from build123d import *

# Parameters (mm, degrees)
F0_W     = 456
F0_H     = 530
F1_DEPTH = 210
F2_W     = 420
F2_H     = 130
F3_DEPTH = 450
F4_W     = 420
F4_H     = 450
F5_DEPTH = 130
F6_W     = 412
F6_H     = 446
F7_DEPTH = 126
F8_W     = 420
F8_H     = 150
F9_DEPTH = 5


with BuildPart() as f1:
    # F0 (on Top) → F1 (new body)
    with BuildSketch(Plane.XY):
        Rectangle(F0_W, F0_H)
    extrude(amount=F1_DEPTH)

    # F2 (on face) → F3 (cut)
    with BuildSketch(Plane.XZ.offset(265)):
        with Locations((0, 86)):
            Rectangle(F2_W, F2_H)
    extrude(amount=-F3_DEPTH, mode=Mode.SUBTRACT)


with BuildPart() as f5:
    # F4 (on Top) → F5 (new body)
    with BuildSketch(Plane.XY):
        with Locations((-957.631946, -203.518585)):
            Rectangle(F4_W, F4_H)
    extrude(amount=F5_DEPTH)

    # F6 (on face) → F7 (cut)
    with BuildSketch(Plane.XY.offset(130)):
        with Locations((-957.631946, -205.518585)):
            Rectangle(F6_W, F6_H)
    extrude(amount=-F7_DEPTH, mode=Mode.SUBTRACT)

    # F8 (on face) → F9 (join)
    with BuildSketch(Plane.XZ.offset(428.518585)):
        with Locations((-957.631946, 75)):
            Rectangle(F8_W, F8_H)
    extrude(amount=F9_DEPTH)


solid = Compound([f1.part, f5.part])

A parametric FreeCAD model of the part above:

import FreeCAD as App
import Part
import Sketcher
Q = App.Units.Quantity

doc = App.newDocument("Part")
body = doc.addObject("PartDesign::Body", "Body")

# Sketch on XY plane
sketch1 = body.newObject("Sketcher::SketchObject", "Sketch")
sketch1.AttachmentSupport = (doc.getObject("XY_Plane"), [""])
sketch1.MapMode = "FlatFace"
sketch1.addGeometry(Part.LineSegment(App.Vector(-228, 265, 0), App.Vector(-228, -265, 0)), False)
sketch1.addGeometry(Part.LineSegment(App.Vector(-228, -265, 0), App.Vector(228, -265, 0)), False)
sketch1.addGeometry(Part.LineSegment(App.Vector(228, -265, 0), App.Vector(228, 265, 0)), False)
sketch1.addGeometry(Part.LineSegment(App.Vector(228, 265, 0), App.Vector(-228, 265, 0)), False)
sketch1.addConstraint(Sketcher.Constraint("Coincident", 0, 2, 1, 1))
sketch1.addConstraint(Sketcher.Constraint("Coincident", 1, 2, 2, 1))
sketch1.addConstraint(Sketcher.Constraint("Coincident", 2, 2, 3, 1))
sketch1.addConstraint(Sketcher.Constraint("Coincident", 3, 2, 0, 1))
sketch1.addConstraint(Sketcher.Constraint("Vertical", 0))
sketch1.addConstraint(Sketcher.Constraint("Horizontal", 1))
sketch1.addConstraint(Sketcher.Constraint("Vertical", 2))
sketch1.addConstraint(Sketcher.Constraint("Horizontal", 3))
sketch1.addConstraint(Sketcher.Constraint("Symmetric", 0, 2, 2, 2, -1, 1))
sketch1.addConstraint(Sketcher.Constraint("DistanceX", 1, 1, 1, 2, Q("456 mm")))
sketch1.addConstraint(Sketcher.Constraint("DistanceY", 0, 2, 0, 1, Q("530 mm")))
pad1 = body.newObject("PartDesign::Pad", "Pad")
pad1.Profile = sketch1
pad1.Length = 210

# Sketch on XZ plane
sketch2 = body.newObject("Sketcher::SketchObject", "Sketch001")
sketch2.AttachmentSupport = (doc.getObject("XZ_Plane"), [""])
sketch2.MapMode = "FlatFace"
sketch2.AttachmentOffset = App.Placement(App.Vector(0, 0, 265), App.Rotation())
sketch2.addGeometry(Part.LineSegment(App.Vector(-210, 151, 0), App.Vector(-210, 21, 0)), False)
sketch2.addGeometry(Part.LineSegment(App.Vector(-210, 21, 0), App.Vector(210, 21, 0)), False)
sketch2.addGeometry(Part.LineSegment(App.Vector(210, 21, 0), App.Vector(210, 151, 0)), False)
sketch2.addGeometry(Part.LineSegment(App.Vector(210, 151, 0), App.Vector(-210, 151, 0)), False)
sketch2.addConstraint(Sketcher.Constraint("Coincident", 0, 2, 1, 1))
sketch2.addConstraint(Sketcher.Constraint("Coincident", 1, 2, 2, 1))
sketch2.addConstraint(Sketcher.Constraint("Coincident", 2, 2, 3, 1))
sketch2.addConstraint(Sketcher.Constraint("Coincident", 3, 2, 0, 1))
sketch2.addConstraint(Sketcher.Constraint("Vertical", 0))
sketch2.addConstraint(Sketcher.Constraint("Horizontal", 1))
sketch2.addConstraint(Sketcher.Constraint("Vertical", 2))
sketch2.addConstraint(Sketcher.Constraint("Horizontal", 3))
sketch2.addConstraint(Sketcher.Constraint("DistanceX", 1, 1, 1, 2, Q("420 mm")))
sketch2.addConstraint(Sketcher.Constraint("DistanceY", 0, 2, 0, 1, Q("130 mm")))
sketch2.addConstraint(Sketcher.Constraint("DistanceX", 0, 2, -1, 1, Q("210 mm")))
sketch2.addConstraint(Sketcher.Constraint("DistanceY", -1, 1, 0, 2, Q("21 mm")))
pocket1 = body.newObject("PartDesign::Pocket", "Pocket")
pocket1.Profile = sketch2
pocket1.Length = 450
body2 = doc.addObject("PartDesign::Body", "Body001")

# Sketch on XY plane
sketch3 = body2.newObject("Sketcher::SketchObject", "Sketch002")
sketch3.AttachmentSupport = (doc.getObject("XY_Plane001"), [""])
sketch3.MapMode = "FlatFace"
sketch3.addGeometry(Part.LineSegment(App.Vector(-1167.631946, 21.481415, 0), App.Vector(-1167.631946, -428.518585, 0)), False)
sketch3.addGeometry(Part.LineSegment(App.Vector(-1167.631946, -428.518585, 0), App.Vector(-747.631946, -428.518585, 0)), False)
sketch3.addGeometry(Part.LineSegment(App.Vector(-747.631946, -428.518585, 0), App.Vector(-747.631946, 21.481415, 0)), False)
sketch3.addGeometry(Part.LineSegment(App.Vector(-747.631946, 21.481415, 0), App.Vector(-1167.631946, 21.481415, 0)), False)
sketch3.addConstraint(Sketcher.Constraint("Coincident", 0, 2, 1, 1))
sketch3.addConstraint(Sketcher.Constraint("Coincident", 1, 2, 2, 1))
sketch3.addConstraint(Sketcher.Constraint("Coincident", 2, 2, 3, 1))
sketch3.addConstraint(Sketcher.Constraint("Coincident", 3, 2, 0, 1))
sketch3.addConstraint(Sketcher.Constraint("Vertical", 0))
sketch3.addConstraint(Sketcher.Constraint("Horizontal", 1))
sketch3.addConstraint(Sketcher.Constraint("Vertical", 2))
sketch3.addConstraint(Sketcher.Constraint("Horizontal", 3))
sketch3.addConstraint(Sketcher.Constraint("DistanceX", 1, 1, 1, 2, Q("420 mm")))
sketch3.addConstraint(Sketcher.Constraint("DistanceY", 0, 2, 0, 1, Q("450 mm")))
sketch3.addConstraint(Sketcher.Constraint("DistanceX", 0, 2, -1, 1, Q("1167.631946 mm")))
sketch3.addConstraint(Sketcher.Constraint("DistanceY", 0, 2, -1, 1, Q("428.518585 mm")))
pad2 = body2.newObject("PartDesign::Pad", "Pad001")
pad2.Profile = sketch3
pad2.Length = 130

# Sketch on XY plane
sketch4 = body2.newObject("Sketcher::SketchObject", "Sketch003")
sketch4.AttachmentSupport = (doc.getObject("XY_Plane001"), [""])
sketch4.MapMode = "FlatFace"
sketch4.AttachmentOffset = App.Placement(App.Vector(0, 0, 130), App.Rotation())
sketch4.addGeometry(Part.LineSegment(App.Vector(-1163.631946, 17.481415, 0), App.Vector(-1163.631946, -428.518585, 0)), False)
sketch4.addGeometry(Part.LineSegment(App.Vector(-1163.631946, -428.518585, 0), App.Vector(-751.631946, -428.518585, 0)), False)
sketch4.addGeometry(Part.LineSegment(App.Vector(-751.631946, -428.518585, 0), App.Vector(-751.631946, 17.481415, 0)), False)
sketch4.addGeometry(Part.LineSegment(App.Vector(-751.631946, 17.481415, 0), App.Vector(-1163.631946, 17.481415, 0)), False)
sketch4.addConstraint(Sketcher.Constraint("Coincident", 0, 2, 1, 1))
sketch4.addConstraint(Sketcher.Constraint("Coincident", 1, 2, 2, 1))
sketch4.addConstraint(Sketcher.Constraint("Coincident", 2, 2, 3, 1))
sketch4.addConstraint(Sketcher.Constraint("Coincident", 3, 2, 0, 1))
sketch4.addConstraint(Sketcher.Constraint("Vertical", 0))
sketch4.addConstraint(Sketcher.Constraint("Horizontal", 1))
sketch4.addConstraint(Sketcher.Constraint("Vertical", 2))
sketch4.addConstraint(Sketcher.Constraint("Horizontal", 3))
sketch4.addConstraint(Sketcher.Constraint("DistanceX", 1, 1, 1, 2, Q("412 mm")))
sketch4.addConstraint(Sketcher.Constraint("DistanceY", 0, 2, 0, 1, Q("446 mm")))
sketch4.addConstraint(Sketcher.Constraint("DistanceX", 0, 2, -1, 1, Q("1163.631946 mm")))
sketch4.addConstraint(Sketcher.Constraint("DistanceY", 0, 2, -1, 1, Q("428.518585 mm")))
pocket2 = body2.newObject("PartDesign::Pocket", "Pocket001")
pocket2.Profile = sketch4
pocket2.Length = 126

# Sketch on XZ plane
sketch5 = body2.newObject("Sketcher::SketchObject", "Sketch004")
sketch5.AttachmentSupport = (doc.getObject("XZ_Plane001"), [""])
sketch5.MapMode = "FlatFace"
sketch5.AttachmentOffset = App.Placement(App.Vector(0, 0, 428.518585), App.Rotation())
sketch5.addGeometry(Part.LineSegment(App.Vector(-1167.631946, 150, 0), App.Vector(-1167.631946, 0, 0)), False)
sketch5.addGeometry(Part.LineSegment(App.Vector(-1167.631946, 0, 0), App.Vector(-747.631946, 0, 0)), False)
sketch5.addGeometry(Part.LineSegment(App.Vector(-747.631946, 0, 0), App.Vector(-747.631946, 150, 0)), False)
sketch5.addGeometry(Part.LineSegment(App.Vector(-747.631946, 150, 0), App.Vector(-1167.631946, 150, 0)), False)
sketch5.addConstraint(Sketcher.Constraint("Coincident", 0, 2, 1, 1))
sketch5.addConstraint(Sketcher.Constraint("Coincident", 1, 2, 2, 1))
sketch5.addConstraint(Sketcher.Constraint("Coincident", 2, 2, 3, 1))
sketch5.addConstraint(Sketcher.Constraint("Coincident", 3, 2, 0, 1))
sketch5.addConstraint(Sketcher.Constraint("Vertical", 0))
sketch5.addConstraint(Sketcher.Constraint("Horizontal", 1))
sketch5.addConstraint(Sketcher.Constraint("Vertical", 2))
sketch5.addConstraint(Sketcher.Constraint("Horizontal", 3))
sketch5.addConstraint(Sketcher.Constraint("PointOnObject", 0, 2, -1))
sketch5.addConstraint(Sketcher.Constraint("DistanceX", 1, 1, 1, 2, Q("420 mm")))
sketch5.addConstraint(Sketcher.Constraint("DistanceY", 0, 2, 0, 1, Q("150 mm")))
sketch5.addConstraint(Sketcher.Constraint("DistanceX", 0, 2, -1, 1, Q("1167.631946 mm")))
pad3 = body2.newObject("PartDesign::Pad", "Pad002")
pad3.Profile = sketch5
pad3.Length = 5

doc.recompute()
